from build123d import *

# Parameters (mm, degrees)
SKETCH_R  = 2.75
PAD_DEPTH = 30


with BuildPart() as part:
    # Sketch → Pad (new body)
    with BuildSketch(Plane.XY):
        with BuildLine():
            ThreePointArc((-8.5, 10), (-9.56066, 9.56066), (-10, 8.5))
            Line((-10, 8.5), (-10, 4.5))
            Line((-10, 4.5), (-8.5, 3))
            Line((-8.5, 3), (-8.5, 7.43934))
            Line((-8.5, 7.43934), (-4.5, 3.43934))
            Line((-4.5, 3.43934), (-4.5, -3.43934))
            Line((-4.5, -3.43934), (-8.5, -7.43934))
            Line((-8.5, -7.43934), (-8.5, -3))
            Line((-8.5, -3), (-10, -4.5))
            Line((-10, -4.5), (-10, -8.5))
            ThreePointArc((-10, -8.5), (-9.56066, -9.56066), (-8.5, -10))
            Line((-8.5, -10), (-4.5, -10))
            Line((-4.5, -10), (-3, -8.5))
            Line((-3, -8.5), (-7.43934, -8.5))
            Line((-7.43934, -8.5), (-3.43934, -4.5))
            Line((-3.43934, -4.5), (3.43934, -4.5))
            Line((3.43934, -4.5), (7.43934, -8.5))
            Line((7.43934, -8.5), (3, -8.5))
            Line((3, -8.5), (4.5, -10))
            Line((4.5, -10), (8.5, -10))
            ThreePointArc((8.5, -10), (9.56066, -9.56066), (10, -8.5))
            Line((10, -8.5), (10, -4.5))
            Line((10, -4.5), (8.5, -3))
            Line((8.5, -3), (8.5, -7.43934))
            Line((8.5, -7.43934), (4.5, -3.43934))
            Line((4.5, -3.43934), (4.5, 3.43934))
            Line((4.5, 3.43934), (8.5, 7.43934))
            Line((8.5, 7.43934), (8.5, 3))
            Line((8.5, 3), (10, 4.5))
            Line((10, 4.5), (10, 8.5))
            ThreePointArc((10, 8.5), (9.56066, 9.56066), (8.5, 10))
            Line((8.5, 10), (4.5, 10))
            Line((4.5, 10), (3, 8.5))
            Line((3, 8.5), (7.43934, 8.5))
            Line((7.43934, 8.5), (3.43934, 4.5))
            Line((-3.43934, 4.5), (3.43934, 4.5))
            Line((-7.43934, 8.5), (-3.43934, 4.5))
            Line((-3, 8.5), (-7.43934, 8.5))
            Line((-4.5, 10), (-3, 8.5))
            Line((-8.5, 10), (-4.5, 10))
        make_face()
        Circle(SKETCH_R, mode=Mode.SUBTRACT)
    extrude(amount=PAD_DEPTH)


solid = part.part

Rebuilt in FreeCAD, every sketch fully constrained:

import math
import FreeCAD as App
import Part
import Sketcher
from FreeCAD import Vector
Q = App.Units.Quantity

doc = App.newDocument("Part")
body = doc.addObject("PartDesign::Body", "Body")

# Sketch on XY plane
sketch1 = body.newObject("Sketcher::SketchObject", "Sketch")
sketch1.AttachmentSupport = (doc.getObject("XY_Plane"), [""])
sketch1.MapMode = "FlatFace"
sketch1.addGeometry(Part.ArcOfCircle(Part.Circle(Vector(-8.5, 8.5, 0), Vector(0, 0, 1), 1.5), math.radians(90), math.radians(180)), False)
sketch1.addGeometry(Part.LineSegment(Vector(-10, 8.5, 0), Vector(-10, 4.5, 0)), False)
sketch1.addGeometry(Part.LineSegment(Vector(-10, 4.5, 0), Vector(-8.5, 3, 0)), False)
sketch1.addGeometry(Part.LineSegment(Vector(-8.5, 3, 0), Vector(-8.5, 7.4, 0)), False)
sketch1.addGeometry(Part.LineSegment(Vector(-8.5, 7.4, 0), Vector(-4.5, 3.4, 0)), False)
sketch1.addGeometry(Part.LineSegment(Vector(-4.5, 3.4, 0), Vector(-4.5, -3.4, 0)), False)
sketch1.addGeometry(Part.LineSegment(Vector(-4.5, -3.4, 0), Vector(-8.5, -7.4, 0)), False)
sketch1.addGeometry(Part.LineSegment(Vector(-8.5, -7.4, 0), Vector(-8.5, -3, 0)), False)
sketch1.addGeometry(Part.LineSegment(Vector(-8.5, -3, 0), Vector(-10, -4.5, 0)), False)
sketch1.addGeometry(Part.LineSegment(Vector(-10, -4.5, 0), Vector(-10, -8.5, 0)), False)
sketch1.addGeometry(Part.ArcOfCircle(Part.Circle(Vector(-8.5, -8.5, 0), Vector(0, 0, 1), 1.5), math.radians(-180), math.radians(-90)), False)
sketch1.addGeometry(Part.LineSegment(Vector(-8.5, -10, 0), Vector(-4.5, -10, 0)), False)
sketch1.addGeometry(Part.LineSegment(Vector(-4.5, -10, 0), Vector(-3, -8.5, 0)), False)
sketch1.addGeometry(Part.LineSegment(Vector(-3, -8.5, 0), Vector(-7.4, -8.5, 0)), False)
sketch1.addGeometry(Part.LineSegment(Vector(-7.4, -8.5, 0), Vector(-3.4, -4.5, 0)), False)
sketch1.addGeometry(Part.LineSegment(Vector(-3.4, -4.5, 0), Vector(3.4, -4.5, 0)), False)
sketch1.addGeometry(Part.LineSegment(Vector(3.4, -4.5, 0), Vector(7.4, -8.5, 0)), False)
sketch1.addGeometry(Part.LineSegment(Vector(7.4, -8.5, 0), Vector(3, -8.5, 0)), False)
sketch1.addGeometry(Part.LineSegment(Vector(3, -8.5, 0), Vector(4.5, -10, 0)), False)
sketch1.addGeometry(Part.LineSegment(Vector(4.5, -10, 0), Vector(8.5, -10, 0)), False)
sketch1.addGeometry(Part.ArcOfCircle(Part.Circle(Vector(8.5, -8.5, 0), Vector(0, 0, 1), 1.5), math.radians(-90), math.radians(0)), False)
sketch1.addGeometry(Part.LineSegment(Vector(10, -8.5, 0), Vector(10, -4.5, 0)), False)
sketch1.addGeometry(Part.LineSegment(Vector(10, -4.5, 0), Vector(8.5, -3, 0)), False)
sketch1.addGeometry(Part.LineSegment(Vector(8.5, -3, 0), Vector(8.5, -7.4, 0)), False)
sketch1.addGeometry(Part.LineSegment(Vector(8.5, -7.4, 0), Vector(4.5, -3.4, 0)), False)
sketch1.addGeometry(Part.LineSegment(Vector(4.5, -3.4, 0), Vector(4.5, 3.4, 0)), False)
sketch1.addGeometry(Part.LineSegment(Vector(4.5, 3.4, 0), Vector(8.5, 7.4, 0)), False)
sketch1.addGeometry(Part.LineSegment(Vector(8.5, 7.4, 0), Vector(8.5, 3, 0)), False)
sketch1.addGeometry(Part.LineSegment(Vector(8.5, 3, 0), Vector(10, 4.5, 0)), False)
sketch1.addGeometry(Part.LineSegment(Vector(10, 4.5, 0), Vector(10, 8.5, 0)), False)
sketch1.addGeometry(Part.ArcOfCircle(Part.Circle(Vector(8.5, 8.5, 0), Vector(0, 0, 1), 1.5), math.radians(0), math.radians(90)), False)
sketch1.addGeometry(Part.LineSegment(Vector(8.5, 10, 0), Vector(4.5, 10, 0)), False)
sketch1.addGeometry(Part.LineSegment(Vector(4.5, 10, 0), Vector(3, 8.5, 0)), False)
sketch1.addGeometry(Part.LineSegment(Vector(3, 8.5, 0), Vector(7.4, 8.5, 0)), False)
sketch1.addGeometry(Part.LineSegment(Vector(7.4, 8.5, 0), Vector(3.4, 4.5, 0)), False)
sketch1.addGeometry(Part.LineSegment(Vector(3.4, 4.5, 0), Vector(-3.4, 4.5, 0)), False)
sketch1.addGeometry(Part.LineSegment(Vector(-3.4, 4.5, 0), Vector(-7.4, 8.5, 0)), False)
sketch1.addGeometry(Part.LineSegment(Vector(-7.4, 8.5, 0), Vector(-3, 8.5, 0)), False)
sketch1.addGeometry(Part.LineSegment(Vector(-3, 8.5, 0), Vector(-4.5, 10, 0)), False)
sketch1.addGeometry(Part.LineSegment(Vector(-4.5, 10, 0), Vector(-8.5, 10, 0)), False)
sketch1.addGeometry(Part.Circle(Vector(0, 0, 0), Vector(0, 0, 1), 2.8), False)
sketch1.addConstraint(Sketcher.Constraint("Tangent", 0, 2, 1, 1))
sketch1.addConstraint(Sketcher.Constraint("Coincident", 1, 2, 2, 1))
sketch1.addConstraint(Sketcher.Constraint("Coincident", 2, 2, 3, 1))
sketch1.addConstraint(Sketcher.Constraint("Coincident", 3, 2, 4, 1))
sketch1.addConstraint(Sketcher.Constraint("Coincident", 4, 2, 5, 1))
sketch1.addConstraint(Sketcher.Constraint("Coincident", 5, 2, 6, 1))
sketch1.addConstraint(Sketcher.Constraint("Coincident", 6, 2, 7, 1))
sketch1.addConstraint(Sketcher.Constraint("Coincident", 7, 2, 8, 1))
sketch1.addConstraint(Sketcher.Constraint("Coincident", 8, 2, 9, 1))
sketch1.addConstraint(Sketcher.Constraint("Tangent", 9, 2, 10, 1))
sketch1.addConstraint(Sketcher.Constraint("Tangent", 10, 2, 11, 1))
sketch1.addConstraint(Sketcher.Constraint("Coincident", 11, 2, 12, 1))
sketch1.addConstraint(Sketcher.Constraint("Coincident", 12, 2, 13, 1))
sketch1.addConstraint(Sketcher.Constraint("Coincident", 13, 2, 14, 1))
sketch1.addConstraint(Sketcher.Constraint("Coincident", 14, 2, 15, 1))
sketch1.addConstraint(Sketcher.Constraint("Coincident", 15, 2, 16, 1))
sketch1.addConstraint(Sketcher.Constraint("Coincident", 16, 2, 17, 1))
sketch1.addConstraint(Sketcher.Constraint("Coincident", 17, 2, 18, 1))
sketch1.addConstraint(Sketcher.Constraint("Coincident", 18, 2, 19, 1))
sketch1.addConstraint(Sketcher.Constraint("Tangent", 19, 2, 20, 1))
sketch1.addConstraint(Sketcher.Constraint("Tangent", 20, 2, 21, 1))
sketch1.addConstraint(Sketcher.Constraint("Coincident", 21, 2, 22, 1))
sketch1.addConstraint(Sketcher.Constraint("Coincident", 22, 2, 23, 1))
sketch1.addConstraint(Sketcher.Constraint("Coincident", 23, 2, 24, 1))
sketch1.addConstraint(Sketcher.Constraint("Coincident", 24, 2, 25, 1))
sketch1.addConstraint(Sketcher.Constraint("Coincident", 25, 2, 26, 1))
sketch1.addConstraint(Sketcher.Constraint("Coincident", 26, 2, 27, 1))
sketch1.addConstraint(Sketcher.Constraint("Coincident", 27, 2, 28, 1))
sketch1.addConstraint(Sketcher.Constraint("Coincident", 28, 2, 29, 1))
sketch1.addConstraint(Sketcher.Constraint("Tangent", 29, 2, 30, 1))
sketch1.addConstraint(Sketcher.Constraint("Tangent", 30, 2, 31, 1))
sketch1.addConstraint(Sketcher.Constraint("Coincident", 31, 2, 32, 1))
sketch1.addConstraint(Sketcher.Constraint("Coincident", 32, 2, 33, 1))
sketch1.addConstraint(Sketcher.Constraint("Coincident", 33, 2, 34, 1))
sketch1.addConstraint(Sketcher.Constraint("Coincident", 34, 2, 35, 1))
sketch1.addConstraint(Sketcher.Constraint("Coincident", 35, 2, 36, 1))
sketch1.addConstraint(Sketcher.Constraint("Coincident", 36, 2, 37, 1))
sketch1.addConstraint(Sketcher.Constraint("Coincident", 37, 2, 38, 1))
sketch1.addConstraint(Sketcher.Constraint("Coincident", 38, 2, 39, 1))
sketch1.addConstraint(Sketcher.Constraint("Tangent", 39, 2, 0, 1))
sketch1.addConstraint(Sketcher.Constraint("Vertical", 1))
sketch1.addConstraint(Sketcher.Constraint("Vertical", 3))
sketch1.addConstraint(Sketcher.Constraint("Vertical", 5))
sketch1.addConstraint(Sketcher.Constraint("Vertical", 7))
sketch1.addConstraint(Sketcher.Constraint("Vertical", 9))
sketch1.addConstraint(Sketcher.Constraint("Horizontal", 11))
sketch1.addConstraint(Sketcher.Constraint("Horizontal", 13))
sketch1.addConstraint(Sketcher.Constraint("Horizontal", 15))
sketch1.addConstraint(Sketcher.Constraint("Horizontal", 17))
sketch1.addConstraint(Sketcher.Constraint("Horizontal", 19))
sketch1.addConstraint(Sketcher.Constraint("Vertical", 21))
sketch1.addConstraint(Sketcher.Constraint("Vertical", 23))
sketch1.addConstraint(Sketcher.Constraint("Vertical", 25))
sketch1.addConstraint(Sketcher.Constraint("Vertical", 27))
sketch1.addConstraint(Sketcher.Constraint("Vertical", 29))
sketch1.addConstraint(Sketcher.Constraint("Horizontal", 31))
sketch1.addConstraint(Sketcher.Constraint("Horizontal", 33))
sketch1.addConstraint(Sketcher.Constraint("Horizontal", 35))
sketch1.addConstraint(Sketcher.Constraint("Horizontal", 37))
sketch1.addConstraint(Sketcher.Constraint("Horizontal", 39))
sketch1.addConstraint(Sketcher.Constraint("Coincident", 40, 3, -1, 1))
sketch1.addConstraint(Sketcher.Constraint("Equal", 0, 10))
sketch1.addConstraint(Sketcher.Constraint("Equal", 10, 20))
sketch1.addConstraint(Sketcher.Constraint("Equal", 20, 30))
sketch1.addConstraint(Sketcher.Constraint("Symmetric", 0, 3, 20, 3, -1, 1))
sketch1.addConstraint(Sketcher.Constraint("Symmetric", 10, 3, 30, 3, -1, 1))
sketch1.addConstraint(Sketcher.Constraint("Symmetric", 2, 2, 22, 2, -1, 1))
sketch1.addConstraint(Sketcher.Constraint("Symmetric", 4, 2, 24, 2, -1, 1))
sketch1.addConstraint(Sketcher.Constraint("Symmetric", 6, 2, 26, 2, -1, 1))
sketch1.addConstraint(Sketcher.Constraint("Symmetric", 12, 2, 32, 2, -1, 1))
sketch1.addConstraint(Sketcher.Constraint("Symmetric", 14, 2, 34, 2, -1, 1))
sketch1.addConstraint(Sketcher.Constraint("Symmetric", 16, 2, 36, 2, -1, 1))
sketch1.addConstraint(Sketcher.Constraint("Symmetric", 10, 3, 20, 3, -2))
sketch1.addConstraint(Sketcher.Constraint("Symmetric", 13, 2, 16, 2, -2))
sketch1.addConstraint(Sketcher.Constraint("Symmetric", 7, 2, 22, 2, -2))
sketch1.addConstraint(Sketcher.Constraint("Parallel", 2, 4))
sketch1.addConstraint(Sketcher.Constraint("Perpendicular", 4, 6))
sketch1.addConstraint(Sketcher.Constraint("Parallel", 6, 8))
sketch1.addConstraint(Sketcher.Constraint("Parallel", 8, 12))
sketch1.addConstraint(Sketcher.Constraint("Parallel", 12, 14))
sketch1.addConstraint(Sketcher.Constraint("Perpendicular", 14, 16))
sketch1.addConstraint(Sketcher.Constraint("Parallel", 16, 18))
sketch1.addConstraint(Sketcher.Constraint("Parallel", 18, 22))
sketch1.addConstraint(Sketcher.Constraint("Parallel", 22, 24))
sketch1.addConstraint(Sketcher.Constraint("Perpendicular", 24, 26))
sketch1.addConstraint(Sketcher.Constraint("Parallel", 26, 28))
sketch1.addConstraint(Sketcher.Constraint("Parallel", 28, 32))
sketch1.addConstraint(Sketcher.Constraint("Parallel", 32, 34))
sketch1.addConstraint(Sketcher.Constraint("Perpendicular", 34, 36))
sketch1.addConstraint(Sketcher.Constraint("Parallel", 36, 38))
sketch1.addConstraint(Sketcher.Constraint("Horizontal", 9, 2, 12, 2))
sketch1.addConstraint(Sketcher.Constraint("Horizontal", 8, 2, 14, 2))
sketch1.addConstraint(Sketcher.Constraint("Horizontal", 15, 2, 21, 2))
sketch1.addConstraint(Sketcher.Constraint("Horizontal", 6, 2, 23, 2))
sketch1.addConstraint(Sketcher.Constraint("Horizontal", 2, 2, 27, 2))
sketch1.addConstraint(Sketcher.Constraint("Vertical", 10, 3, 2, 2))
sketch1.addConstraint(Sketcher.Constraint("Vertical", 5, 2, 11, 2))
sketch1.addConstraint(Sketcher.Constraint("Vertical", 18, 2, 24, 2))
sketch1.addConstraint(Sketcher.Constraint("Vertical", 12, 2, 37, 2))
sketch1.addConstraint(Sketcher.Constraint("Equal", 39, 1))
sketch1.addConstraint(Sketcher.Constraint("Equal", 37, 3))
sketch1.addConstraint(Sketcher.Constraint("Equal", 35, 5))
sketch1.addConstraint(Sketcher.Constraint("Diameter", 40, Q("5.5 mm")))
sketch1.addConstraint(Sketcher.Constraint("Radius", 0, Q("1.500001 mm")))
sketch1.addConstraint(Sketcher.Constraint("DistanceX", 11, 1, 11, 2, Q("4 mm")))
sketch1.addConstraint(Sketcher.Constraint("DistanceX", 0, 2, -1, 1, Q("10 mm")))
sketch1.addConstraint(Sketcher.Constraint("DistanceX", 13, 2, 13, 1, Q("4.43934 mm")))
pad1 = body.newObject("PartDesign::Pad", "Pad")
pad1.Profile = sketch1
pad1.Length = 30

doc.recompute()
